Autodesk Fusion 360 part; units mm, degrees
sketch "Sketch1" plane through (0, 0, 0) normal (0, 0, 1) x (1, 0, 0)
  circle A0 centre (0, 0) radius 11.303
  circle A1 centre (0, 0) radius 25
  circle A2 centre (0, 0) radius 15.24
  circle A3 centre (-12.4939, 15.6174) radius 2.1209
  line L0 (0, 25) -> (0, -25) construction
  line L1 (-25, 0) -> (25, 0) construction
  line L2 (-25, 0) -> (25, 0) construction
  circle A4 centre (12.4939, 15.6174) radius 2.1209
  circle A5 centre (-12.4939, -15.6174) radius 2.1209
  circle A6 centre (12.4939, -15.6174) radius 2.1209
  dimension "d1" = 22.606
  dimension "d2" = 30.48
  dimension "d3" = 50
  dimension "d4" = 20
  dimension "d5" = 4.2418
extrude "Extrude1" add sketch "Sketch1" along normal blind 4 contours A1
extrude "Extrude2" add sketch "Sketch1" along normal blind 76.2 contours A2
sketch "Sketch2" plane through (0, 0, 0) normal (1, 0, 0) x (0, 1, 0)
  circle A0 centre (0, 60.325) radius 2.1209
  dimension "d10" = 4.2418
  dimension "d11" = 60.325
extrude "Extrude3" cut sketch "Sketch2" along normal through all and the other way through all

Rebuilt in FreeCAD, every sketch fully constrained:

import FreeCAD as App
import Part
import Sketcher
from FreeCAD import Vector
Q = App.Units.Quantity

doc = App.newDocument("Part")
body = doc.addObject("PartDesign::Body", "Body")

# Sketch on XY plane
sketch1 = body.newObject("Sketcher::SketchObject", "Sketch")
sketch1.AttachmentSupport = (doc.getObject("XY_Plane"), [""])
sketch1.MapMode = "FlatFace"
sketch1.addGeometry([
    Part.Circle(Vector(0, 0, 0), Vector(0, 0, 1), 25),  # 0
    Part.Circle(Vector(-12.5, -15.6, 0), Vector(0, 0, 1), 2.1),  # 1
    Part.Circle(Vector(12.5, -15.6, 0), Vector(0, 0, 1), 2.1),  # 2
    Part.Circle(Vector(-12.5, 15.6, 0), Vector(0, 0, 1), 2.1),  # 3
    Part.Circle(Vector(0, 0, 0), Vector(0, 0, 1), 15.2),  # 4
    Part.Circle(Vector(12.5, 15.6, 0), Vector(0, 0, 1), 2.1),  # 5
], False)
sketch1.addConstraint([
    Sketcher.Constraint("Coincident", 0, 3, -1, 1),
    Sketcher.Constraint("Coincident", 4, 3, -1, 1),
    Sketcher.Constraint("Equal", 1, 2),
    Sketcher.Constraint("Equal", 2, 3),
    Sketcher.Constraint("Equal", 3, 5),
    Sketcher.Constraint("Symmetric", 2, 3, 3, 3, -1, 1),
    Sketcher.Constraint("Symmetric", 1, 3, 5, 3, -1, 1),
    Sketcher.Constraint("Symmetric", 1, 3, 2, 3, -2),
    Sketcher.Constraint("Diameter", 4, Q("1.2 in")),
    Sketcher.Constraint("Diameter", 1, Q("0.167 in")),
    Sketcher.Constraint("Diameter", 0, Q("1.9685 in")),
    Sketcher.Constraint("DistanceX", 1, 3, -1, 1, Q("0.4918898 in")),
    Sketcher.Constraint("DistanceY", 1, 3, -1, 1, Q("15.6174 mm")),
])
pad1 = body.newObject("PartDesign::Pad", "Pad")
pad1.Profile = sketch1
pad1.Length = 4

# Sketch on XY plane
sketch2 = body.newObject("Sketcher::SketchObject", "Sketch001")
sketch2.AttachmentSupport = (doc.getObject("XY_Plane"), [""])
sketch2.MapMode = "FlatFace"
sketch2.addGeometry([
    Part.Circle(Vector(0, 0, 0), Vector(0, 0, 1), 15),
    Part.Circle(Vector(0, 0, 0), Vector(0, 0, 1), 11),
], False)
sketch2.addConstraint([
    Sketcher.Constraint("Coincident", 0, 3, -1, 1),
    Sketcher.Constraint("Coincident", 1, 3, -1, 1),
    Sketcher.Constraint("Diameter", 0, Q("1.2 in")),
    Sketcher.Constraint("Diameter", 1, Q("0.89 in")),
])
pad2 = body.newObject("PartDesign::Pad", "Pad001")
pad2.Profile = sketch2
pad2.Length = Q("3 in")

# Sketch on YZ plane
sketch3 = body.newObject("Sketcher::SketchObject", "Sketch002")
sketch3.AttachmentSupport = (doc.getObject("YZ_Plane"), [""])
sketch3.MapMode = "FlatFace"
sketch3.addGeometry(Part.Circle(Vector(0, 60.3, 0), Vector(0, 0, 1), 2.1), False)
sketch3.addConstraint([
    Sketcher.Constraint("PointOnObject", 0, 3, -2),
    Sketcher.Constraint("Diameter", 0, Q("0.167 in")),
    Sketcher.Constraint("DistanceY", -1, 1, 0, 3, Q("2.375 in")),
])
pocket1 = body.newObject("PartDesign::Pocket", "Pocket")
pocket1.Profile = sketch3
pocket1.Type = "ThroughAll"
pocket1.Midplane = True

doc.recompute()
